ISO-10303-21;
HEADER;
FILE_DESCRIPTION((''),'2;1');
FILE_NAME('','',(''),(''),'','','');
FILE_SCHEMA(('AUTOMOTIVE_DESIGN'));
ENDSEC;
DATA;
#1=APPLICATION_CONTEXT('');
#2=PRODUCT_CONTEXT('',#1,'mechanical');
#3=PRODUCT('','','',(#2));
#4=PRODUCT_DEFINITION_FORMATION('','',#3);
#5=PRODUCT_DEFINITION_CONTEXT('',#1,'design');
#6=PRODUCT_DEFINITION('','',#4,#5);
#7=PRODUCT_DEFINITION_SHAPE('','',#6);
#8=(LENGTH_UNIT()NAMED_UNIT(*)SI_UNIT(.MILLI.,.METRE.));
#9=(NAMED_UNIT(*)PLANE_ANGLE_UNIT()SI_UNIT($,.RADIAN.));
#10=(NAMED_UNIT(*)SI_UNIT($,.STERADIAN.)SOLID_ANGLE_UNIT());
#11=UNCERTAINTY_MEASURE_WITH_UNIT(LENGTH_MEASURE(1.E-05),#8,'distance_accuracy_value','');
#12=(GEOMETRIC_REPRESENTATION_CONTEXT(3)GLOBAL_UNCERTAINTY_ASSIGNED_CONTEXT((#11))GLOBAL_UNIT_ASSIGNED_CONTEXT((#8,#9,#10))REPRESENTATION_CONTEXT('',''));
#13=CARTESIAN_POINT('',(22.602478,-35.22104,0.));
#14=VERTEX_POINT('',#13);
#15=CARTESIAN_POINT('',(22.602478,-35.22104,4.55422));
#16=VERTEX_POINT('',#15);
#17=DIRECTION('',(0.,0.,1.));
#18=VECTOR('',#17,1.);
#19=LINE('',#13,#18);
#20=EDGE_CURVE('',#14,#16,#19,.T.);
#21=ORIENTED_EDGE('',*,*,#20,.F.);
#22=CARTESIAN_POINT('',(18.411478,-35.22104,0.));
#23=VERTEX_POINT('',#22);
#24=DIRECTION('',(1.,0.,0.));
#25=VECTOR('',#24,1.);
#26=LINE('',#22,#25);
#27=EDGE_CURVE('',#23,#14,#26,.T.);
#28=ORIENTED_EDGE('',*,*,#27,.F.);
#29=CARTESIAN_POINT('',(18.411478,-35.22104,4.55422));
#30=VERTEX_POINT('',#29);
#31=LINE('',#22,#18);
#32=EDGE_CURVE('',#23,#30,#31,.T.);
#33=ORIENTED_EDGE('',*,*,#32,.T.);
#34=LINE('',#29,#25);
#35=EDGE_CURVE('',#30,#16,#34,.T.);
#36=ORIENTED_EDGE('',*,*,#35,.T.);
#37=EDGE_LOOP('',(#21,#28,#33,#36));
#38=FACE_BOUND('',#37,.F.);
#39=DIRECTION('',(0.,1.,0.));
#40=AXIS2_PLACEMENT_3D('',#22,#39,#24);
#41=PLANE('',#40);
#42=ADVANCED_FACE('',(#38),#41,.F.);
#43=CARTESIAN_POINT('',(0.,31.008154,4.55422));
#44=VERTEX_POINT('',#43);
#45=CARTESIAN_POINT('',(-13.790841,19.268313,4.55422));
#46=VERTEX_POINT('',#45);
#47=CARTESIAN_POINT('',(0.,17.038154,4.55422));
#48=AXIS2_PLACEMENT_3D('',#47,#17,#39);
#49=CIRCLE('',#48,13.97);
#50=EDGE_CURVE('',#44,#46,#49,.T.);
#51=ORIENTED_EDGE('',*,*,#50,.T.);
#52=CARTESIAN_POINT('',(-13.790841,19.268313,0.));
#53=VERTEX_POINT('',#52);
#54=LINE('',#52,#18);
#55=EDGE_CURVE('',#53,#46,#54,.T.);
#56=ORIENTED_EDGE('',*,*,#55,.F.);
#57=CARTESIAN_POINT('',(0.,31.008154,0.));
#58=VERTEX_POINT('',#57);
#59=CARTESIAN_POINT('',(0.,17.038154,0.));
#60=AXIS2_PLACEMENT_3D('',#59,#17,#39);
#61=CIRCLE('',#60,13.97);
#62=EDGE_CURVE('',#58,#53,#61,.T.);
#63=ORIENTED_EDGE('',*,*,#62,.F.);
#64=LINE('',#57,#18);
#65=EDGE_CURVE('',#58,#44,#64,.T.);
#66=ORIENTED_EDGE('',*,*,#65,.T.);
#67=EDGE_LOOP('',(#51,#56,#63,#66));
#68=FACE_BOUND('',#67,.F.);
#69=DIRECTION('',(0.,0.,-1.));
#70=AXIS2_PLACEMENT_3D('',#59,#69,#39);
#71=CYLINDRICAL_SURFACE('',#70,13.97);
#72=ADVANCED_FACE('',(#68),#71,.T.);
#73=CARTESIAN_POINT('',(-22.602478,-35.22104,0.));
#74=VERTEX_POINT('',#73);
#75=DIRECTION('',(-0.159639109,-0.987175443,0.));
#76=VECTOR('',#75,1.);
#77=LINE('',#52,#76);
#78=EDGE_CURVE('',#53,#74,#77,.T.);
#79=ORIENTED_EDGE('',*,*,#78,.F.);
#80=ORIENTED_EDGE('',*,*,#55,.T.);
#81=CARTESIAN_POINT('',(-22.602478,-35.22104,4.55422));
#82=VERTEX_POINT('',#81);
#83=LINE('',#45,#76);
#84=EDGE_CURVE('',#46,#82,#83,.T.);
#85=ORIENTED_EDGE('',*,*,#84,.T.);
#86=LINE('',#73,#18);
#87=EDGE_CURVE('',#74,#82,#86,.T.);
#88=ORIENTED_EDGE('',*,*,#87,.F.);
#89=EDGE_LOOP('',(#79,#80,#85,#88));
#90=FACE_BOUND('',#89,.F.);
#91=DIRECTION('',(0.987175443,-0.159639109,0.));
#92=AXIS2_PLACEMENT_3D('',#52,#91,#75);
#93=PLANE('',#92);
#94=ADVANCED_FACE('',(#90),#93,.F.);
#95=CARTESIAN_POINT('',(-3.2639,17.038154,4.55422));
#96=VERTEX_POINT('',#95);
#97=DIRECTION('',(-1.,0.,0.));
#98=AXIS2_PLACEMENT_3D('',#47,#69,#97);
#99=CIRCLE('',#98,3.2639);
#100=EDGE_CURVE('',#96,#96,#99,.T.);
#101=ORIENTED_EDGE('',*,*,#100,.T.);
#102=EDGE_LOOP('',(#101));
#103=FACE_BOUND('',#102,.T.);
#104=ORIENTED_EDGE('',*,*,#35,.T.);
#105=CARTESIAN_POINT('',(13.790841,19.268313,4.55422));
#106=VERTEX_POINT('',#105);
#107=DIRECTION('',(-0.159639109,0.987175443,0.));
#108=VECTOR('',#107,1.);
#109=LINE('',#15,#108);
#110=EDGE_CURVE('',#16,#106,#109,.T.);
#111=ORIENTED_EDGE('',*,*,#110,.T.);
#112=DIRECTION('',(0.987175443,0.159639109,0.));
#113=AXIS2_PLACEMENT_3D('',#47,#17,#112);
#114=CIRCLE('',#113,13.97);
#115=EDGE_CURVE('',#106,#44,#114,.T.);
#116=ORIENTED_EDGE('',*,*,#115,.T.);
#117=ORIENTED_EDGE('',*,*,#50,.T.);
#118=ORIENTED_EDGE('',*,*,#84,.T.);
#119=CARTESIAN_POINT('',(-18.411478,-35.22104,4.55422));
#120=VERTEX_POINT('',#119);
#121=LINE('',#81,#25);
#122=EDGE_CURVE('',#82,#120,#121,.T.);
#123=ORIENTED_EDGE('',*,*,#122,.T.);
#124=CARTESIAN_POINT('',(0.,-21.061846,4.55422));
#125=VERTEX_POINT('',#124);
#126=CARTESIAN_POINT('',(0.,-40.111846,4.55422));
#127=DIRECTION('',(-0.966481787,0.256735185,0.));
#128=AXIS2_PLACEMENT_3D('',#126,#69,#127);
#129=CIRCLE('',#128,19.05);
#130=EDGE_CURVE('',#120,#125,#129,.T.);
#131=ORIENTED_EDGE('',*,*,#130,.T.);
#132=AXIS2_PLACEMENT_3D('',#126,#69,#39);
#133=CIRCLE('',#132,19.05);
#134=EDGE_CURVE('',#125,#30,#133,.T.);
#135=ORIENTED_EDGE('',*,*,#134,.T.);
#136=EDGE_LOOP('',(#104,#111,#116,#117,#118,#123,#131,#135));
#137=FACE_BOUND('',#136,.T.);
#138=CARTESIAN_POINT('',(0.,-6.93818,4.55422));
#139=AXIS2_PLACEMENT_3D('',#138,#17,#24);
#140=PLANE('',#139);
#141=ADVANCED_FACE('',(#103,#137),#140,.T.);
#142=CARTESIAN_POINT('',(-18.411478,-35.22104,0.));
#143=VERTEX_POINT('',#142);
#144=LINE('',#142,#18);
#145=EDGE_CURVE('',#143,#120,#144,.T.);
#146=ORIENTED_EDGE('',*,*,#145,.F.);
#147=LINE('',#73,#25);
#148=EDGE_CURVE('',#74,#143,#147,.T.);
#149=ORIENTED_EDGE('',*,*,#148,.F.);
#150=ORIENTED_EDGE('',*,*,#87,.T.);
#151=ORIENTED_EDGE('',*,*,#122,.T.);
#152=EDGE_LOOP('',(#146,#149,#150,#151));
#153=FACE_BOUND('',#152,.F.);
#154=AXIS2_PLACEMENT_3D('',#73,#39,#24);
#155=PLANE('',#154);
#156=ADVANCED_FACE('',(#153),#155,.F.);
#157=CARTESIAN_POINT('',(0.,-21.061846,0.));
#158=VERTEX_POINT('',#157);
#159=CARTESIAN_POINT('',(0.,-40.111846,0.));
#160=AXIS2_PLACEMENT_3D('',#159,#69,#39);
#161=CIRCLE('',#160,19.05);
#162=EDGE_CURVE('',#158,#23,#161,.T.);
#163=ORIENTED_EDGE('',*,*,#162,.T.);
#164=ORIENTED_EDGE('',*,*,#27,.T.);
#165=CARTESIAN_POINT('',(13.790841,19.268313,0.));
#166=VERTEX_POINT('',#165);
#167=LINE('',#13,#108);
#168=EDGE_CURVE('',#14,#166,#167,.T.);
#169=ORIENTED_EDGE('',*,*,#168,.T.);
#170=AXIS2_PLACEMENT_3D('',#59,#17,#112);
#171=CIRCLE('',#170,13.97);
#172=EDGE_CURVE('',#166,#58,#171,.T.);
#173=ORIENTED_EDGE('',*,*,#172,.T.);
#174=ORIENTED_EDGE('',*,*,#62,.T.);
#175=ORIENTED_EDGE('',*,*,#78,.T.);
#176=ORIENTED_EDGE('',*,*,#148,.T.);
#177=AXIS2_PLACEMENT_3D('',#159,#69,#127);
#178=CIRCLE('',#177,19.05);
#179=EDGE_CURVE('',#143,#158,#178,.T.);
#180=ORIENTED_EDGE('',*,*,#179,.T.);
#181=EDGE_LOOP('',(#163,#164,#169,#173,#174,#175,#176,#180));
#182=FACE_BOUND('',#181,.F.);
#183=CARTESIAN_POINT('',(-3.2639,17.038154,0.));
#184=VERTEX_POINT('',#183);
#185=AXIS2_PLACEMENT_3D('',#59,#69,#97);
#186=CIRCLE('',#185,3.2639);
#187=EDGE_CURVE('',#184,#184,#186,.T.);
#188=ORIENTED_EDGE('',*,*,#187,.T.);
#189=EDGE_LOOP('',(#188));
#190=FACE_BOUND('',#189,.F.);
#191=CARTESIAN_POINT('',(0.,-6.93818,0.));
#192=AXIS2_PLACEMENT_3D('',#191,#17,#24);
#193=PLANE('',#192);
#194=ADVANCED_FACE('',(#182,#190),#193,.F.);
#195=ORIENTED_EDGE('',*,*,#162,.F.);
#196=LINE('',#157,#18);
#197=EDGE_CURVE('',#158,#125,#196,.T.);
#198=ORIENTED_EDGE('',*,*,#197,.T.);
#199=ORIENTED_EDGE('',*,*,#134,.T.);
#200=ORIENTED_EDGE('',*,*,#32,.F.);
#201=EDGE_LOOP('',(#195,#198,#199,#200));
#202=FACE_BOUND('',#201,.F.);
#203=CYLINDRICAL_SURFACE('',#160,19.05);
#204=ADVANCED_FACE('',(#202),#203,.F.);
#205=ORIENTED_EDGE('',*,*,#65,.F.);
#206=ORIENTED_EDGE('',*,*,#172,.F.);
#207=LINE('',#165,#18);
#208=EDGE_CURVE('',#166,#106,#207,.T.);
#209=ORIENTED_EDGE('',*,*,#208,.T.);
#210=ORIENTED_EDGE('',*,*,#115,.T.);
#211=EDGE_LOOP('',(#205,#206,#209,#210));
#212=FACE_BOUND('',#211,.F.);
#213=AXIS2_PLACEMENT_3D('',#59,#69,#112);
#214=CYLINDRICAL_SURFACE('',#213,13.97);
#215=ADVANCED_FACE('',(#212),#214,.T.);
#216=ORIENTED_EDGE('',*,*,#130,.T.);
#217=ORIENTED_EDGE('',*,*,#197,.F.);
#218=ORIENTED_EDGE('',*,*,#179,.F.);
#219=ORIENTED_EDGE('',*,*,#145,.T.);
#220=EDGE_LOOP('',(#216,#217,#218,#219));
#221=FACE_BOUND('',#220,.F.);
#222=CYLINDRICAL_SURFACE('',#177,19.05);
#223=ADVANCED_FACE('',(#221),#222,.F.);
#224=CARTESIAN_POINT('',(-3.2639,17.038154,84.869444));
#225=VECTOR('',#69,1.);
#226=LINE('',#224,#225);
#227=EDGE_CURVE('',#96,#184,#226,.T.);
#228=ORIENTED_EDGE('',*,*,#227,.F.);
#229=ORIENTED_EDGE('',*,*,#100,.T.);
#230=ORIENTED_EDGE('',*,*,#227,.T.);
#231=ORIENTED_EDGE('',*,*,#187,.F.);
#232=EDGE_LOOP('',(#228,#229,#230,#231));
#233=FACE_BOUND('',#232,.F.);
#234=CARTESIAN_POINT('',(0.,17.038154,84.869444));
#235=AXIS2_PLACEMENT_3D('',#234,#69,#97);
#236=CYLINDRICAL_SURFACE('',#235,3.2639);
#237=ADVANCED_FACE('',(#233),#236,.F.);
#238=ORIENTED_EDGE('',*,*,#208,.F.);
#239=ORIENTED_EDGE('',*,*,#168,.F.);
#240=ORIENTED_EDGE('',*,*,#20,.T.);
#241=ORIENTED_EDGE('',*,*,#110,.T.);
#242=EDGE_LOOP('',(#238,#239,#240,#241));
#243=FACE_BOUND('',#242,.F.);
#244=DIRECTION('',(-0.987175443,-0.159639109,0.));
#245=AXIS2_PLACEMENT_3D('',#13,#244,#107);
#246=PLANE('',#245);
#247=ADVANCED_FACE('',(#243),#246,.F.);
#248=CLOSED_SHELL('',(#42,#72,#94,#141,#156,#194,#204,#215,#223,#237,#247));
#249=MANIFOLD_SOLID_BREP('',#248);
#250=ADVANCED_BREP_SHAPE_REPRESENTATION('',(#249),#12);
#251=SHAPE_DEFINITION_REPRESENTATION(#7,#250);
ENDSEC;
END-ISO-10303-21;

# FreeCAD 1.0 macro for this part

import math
import FreeCAD as App
import Part
import Sketcher
from FreeCAD import Vector
Q = App.Units.Quantity

doc = App.newDocument("Part")
params = doc.addObject("Spreadsheet::Sheet", "Params")
for row, (alias, value) in enumerate([
    ("sketch1_radius", "0.55 in"),
    ("sketch1_radius2", "0.75 in"),
    ("sketch1_width", "0.165 in"),
    ("pad1_length", "0.1793 in"),
    ("sketch2_diameter", "0.257 in"),
    ("hole_diameter", "0.257 in"),
], start=1):
    params.set(f"A{row}", alias)
    params.set(f"B{row}", "=" + value)
    params.setAlias(f"B{row}", alias)

body = doc.addObject("PartDesign::Body", "Body")

# Sketch on XY plane
sketch1 = body.newObject("Sketcher::SketchObject", "Sketch")
sketch1.AttachmentSupport = (doc.getObject("XY_Plane"), [""])
sketch1.MapMode = "FlatFace"
sketch1.addGeometry(Part.ArcOfCircle(Part.Circle(Vector(0, 17, 0), Vector(0, 0, 1), 14), math.radians(9), math.radians(90)), False)
sketch1.addGeometry(Part.ArcOfCircle(Part.Circle(Vector(0, 17, 0), Vector(0, 0, 1), 14), math.radians(90), math.radians(171)), False)
sketch1.addGeometry(Part.LineSegment(Vector(-13.8, 19.3, 0), Vector(-22.6, -35.2, 0)), False)
sketch1.addGeometry(Part.LineSegment(Vector(-22.6, -35.2, 0), Vector(-18.4, -35.2, 0)), False)
sketch1.addGeometry(Part.ArcOfCircle(Part.Circle(Vector(0, -40.1, 0), Vector(0, 0, 1), 19.1), math.radians(90), math.radians(165)), False)
sketch1.addGeometry(Part.ArcOfCircle(Part.Circle(Vector(0, -40.1, 0), Vector(0, 0, 1), 19.1), math.radians(15), math.radians(90)), False)
sketch1.addGeometry(Part.LineSegment(Vector(18.4, -35.2, 0), Vector(22.6, -35.2, 0)), False)
sketch1.addGeometry(Part.LineSegment(Vector(22.6, -35.2, 0), Vector(13.8, 19.3, 0)), False)
sketch1.addConstraint(Sketcher.Constraint("Tangent", 0, 2, 1, 1))
sketch1.addConstraint(Sketcher.Constraint("Tangent", 1, 2, 2, 1))
sketch1.addConstraint(Sketcher.Constraint("Coincident", 2, 2, 3, 1))
sketch1.addConstraint(Sketcher.Constraint("Coincident", 3, 2, 4, 2))
sketch1.addConstraint(Sketcher.Constraint("Tangent", 4, 1, 5, 2))
sketch1.addConstraint(Sketcher.Constraint("Coincident", 5, 1, 6, 1))
sketch1.addConstraint(Sketcher.Constraint("Coincident", 6, 2, 7, 1))
sketch1.addConstraint(Sketcher.Constraint("Tangent", 7, 2, 0, 1))
sketch1.addConstraint(Sketcher.Constraint("Horizontal", 3))
sketch1.addConstraint(Sketcher.Constraint("Horizontal", 6))
sketch1.addConstraint(Sketcher.Constraint("Equal", 0, 1))
sketch1.addConstraint(Sketcher.Constraint("Equal", 4, 5))
sketch1.addConstraint(Sketcher.Constraint("Symmetric", 3, 2, 5, 1, -2))
sketch1.addConstraint(Sketcher.Constraint("Symmetric", 1, 2, 7, 2, -2))
sketch1.addConstraint(Sketcher.Constraint("PointOnObject", 0, 2, -2))
sketch1.addConstraint(Sketcher.Constraint("PointOnObject", 4, 1, -2))
sketch1.addConstraint(Sketcher.Constraint("Radius", 0, Q("0.55 in")))
sketch1.addConstraint(Sketcher.Constraint("Radius", 4, Q("0.75 in")))
sketch1.addConstraint(Sketcher.Constraint("DistanceY", 4, 3, 0, 2, Q("2.8 in")))
sketch1.addConstraint(Sketcher.Constraint("DistanceX", 3, 1, 3, 2, Q("0.165 in")))
sketch1.addConstraint(Sketcher.Constraint("DistanceX", 2, 2, -1, 1, 22.602478))
sketch1.addConstraint(Sketcher.Constraint("DistanceY", 2, 2, -1, 1, 35.22104))
sketch1.setExpression("Constraints[16]", "Params.sketch1_radius")
sketch1.setExpression("Constraints[17]", "Params.sketch1_radius2")
sketch1.setExpression("Constraints[19]", "Params.sketch1_width")
pad1 = body.newObject("PartDesign::Pad", "Pad")
pad1.Profile = sketch1
pad1.setExpression("Length", "Params.pad1_length")

# Sketch on XY plane
sketch2 = body.newObject("Sketcher::SketchObject", "Sketch001")
sketch2.AttachmentSupport = (doc.getObject("XY_Plane"), [""])
sketch2.MapMode = "FlatFace"
sketch2.AttachmentOffset = App.Placement(Vector(0, 0, 0.1793 * 25.4), App.Rotation())
sketch2.addGeometry(Part.Circle(Vector(0, 17, 0), Vector(0, 0, 1), 3.3), False)
sketch2.addConstraint(Sketcher.Constraint("PointOnObject", 0, 3, -2))
sketch2.addConstraint(Sketcher.Constraint("Diameter", 0, Q("0.257 in")))
sketch2.addConstraint(Sketcher.Constraint("DistanceY", -1, 1, 0, 3, 17.038154))
sketch2.setExpression("Constraints[1]", "Params.sketch2_diameter")
doc.recompute()
hole = body.newObject("PartDesign::Hole", "Hole")
hole.Profile = sketch2
hole.ThreadType = "None"
hole.setExpression("Diameter", "Params.hole_diameter")
hole.DepthType = "ThroughAll"

doc.recompute()
